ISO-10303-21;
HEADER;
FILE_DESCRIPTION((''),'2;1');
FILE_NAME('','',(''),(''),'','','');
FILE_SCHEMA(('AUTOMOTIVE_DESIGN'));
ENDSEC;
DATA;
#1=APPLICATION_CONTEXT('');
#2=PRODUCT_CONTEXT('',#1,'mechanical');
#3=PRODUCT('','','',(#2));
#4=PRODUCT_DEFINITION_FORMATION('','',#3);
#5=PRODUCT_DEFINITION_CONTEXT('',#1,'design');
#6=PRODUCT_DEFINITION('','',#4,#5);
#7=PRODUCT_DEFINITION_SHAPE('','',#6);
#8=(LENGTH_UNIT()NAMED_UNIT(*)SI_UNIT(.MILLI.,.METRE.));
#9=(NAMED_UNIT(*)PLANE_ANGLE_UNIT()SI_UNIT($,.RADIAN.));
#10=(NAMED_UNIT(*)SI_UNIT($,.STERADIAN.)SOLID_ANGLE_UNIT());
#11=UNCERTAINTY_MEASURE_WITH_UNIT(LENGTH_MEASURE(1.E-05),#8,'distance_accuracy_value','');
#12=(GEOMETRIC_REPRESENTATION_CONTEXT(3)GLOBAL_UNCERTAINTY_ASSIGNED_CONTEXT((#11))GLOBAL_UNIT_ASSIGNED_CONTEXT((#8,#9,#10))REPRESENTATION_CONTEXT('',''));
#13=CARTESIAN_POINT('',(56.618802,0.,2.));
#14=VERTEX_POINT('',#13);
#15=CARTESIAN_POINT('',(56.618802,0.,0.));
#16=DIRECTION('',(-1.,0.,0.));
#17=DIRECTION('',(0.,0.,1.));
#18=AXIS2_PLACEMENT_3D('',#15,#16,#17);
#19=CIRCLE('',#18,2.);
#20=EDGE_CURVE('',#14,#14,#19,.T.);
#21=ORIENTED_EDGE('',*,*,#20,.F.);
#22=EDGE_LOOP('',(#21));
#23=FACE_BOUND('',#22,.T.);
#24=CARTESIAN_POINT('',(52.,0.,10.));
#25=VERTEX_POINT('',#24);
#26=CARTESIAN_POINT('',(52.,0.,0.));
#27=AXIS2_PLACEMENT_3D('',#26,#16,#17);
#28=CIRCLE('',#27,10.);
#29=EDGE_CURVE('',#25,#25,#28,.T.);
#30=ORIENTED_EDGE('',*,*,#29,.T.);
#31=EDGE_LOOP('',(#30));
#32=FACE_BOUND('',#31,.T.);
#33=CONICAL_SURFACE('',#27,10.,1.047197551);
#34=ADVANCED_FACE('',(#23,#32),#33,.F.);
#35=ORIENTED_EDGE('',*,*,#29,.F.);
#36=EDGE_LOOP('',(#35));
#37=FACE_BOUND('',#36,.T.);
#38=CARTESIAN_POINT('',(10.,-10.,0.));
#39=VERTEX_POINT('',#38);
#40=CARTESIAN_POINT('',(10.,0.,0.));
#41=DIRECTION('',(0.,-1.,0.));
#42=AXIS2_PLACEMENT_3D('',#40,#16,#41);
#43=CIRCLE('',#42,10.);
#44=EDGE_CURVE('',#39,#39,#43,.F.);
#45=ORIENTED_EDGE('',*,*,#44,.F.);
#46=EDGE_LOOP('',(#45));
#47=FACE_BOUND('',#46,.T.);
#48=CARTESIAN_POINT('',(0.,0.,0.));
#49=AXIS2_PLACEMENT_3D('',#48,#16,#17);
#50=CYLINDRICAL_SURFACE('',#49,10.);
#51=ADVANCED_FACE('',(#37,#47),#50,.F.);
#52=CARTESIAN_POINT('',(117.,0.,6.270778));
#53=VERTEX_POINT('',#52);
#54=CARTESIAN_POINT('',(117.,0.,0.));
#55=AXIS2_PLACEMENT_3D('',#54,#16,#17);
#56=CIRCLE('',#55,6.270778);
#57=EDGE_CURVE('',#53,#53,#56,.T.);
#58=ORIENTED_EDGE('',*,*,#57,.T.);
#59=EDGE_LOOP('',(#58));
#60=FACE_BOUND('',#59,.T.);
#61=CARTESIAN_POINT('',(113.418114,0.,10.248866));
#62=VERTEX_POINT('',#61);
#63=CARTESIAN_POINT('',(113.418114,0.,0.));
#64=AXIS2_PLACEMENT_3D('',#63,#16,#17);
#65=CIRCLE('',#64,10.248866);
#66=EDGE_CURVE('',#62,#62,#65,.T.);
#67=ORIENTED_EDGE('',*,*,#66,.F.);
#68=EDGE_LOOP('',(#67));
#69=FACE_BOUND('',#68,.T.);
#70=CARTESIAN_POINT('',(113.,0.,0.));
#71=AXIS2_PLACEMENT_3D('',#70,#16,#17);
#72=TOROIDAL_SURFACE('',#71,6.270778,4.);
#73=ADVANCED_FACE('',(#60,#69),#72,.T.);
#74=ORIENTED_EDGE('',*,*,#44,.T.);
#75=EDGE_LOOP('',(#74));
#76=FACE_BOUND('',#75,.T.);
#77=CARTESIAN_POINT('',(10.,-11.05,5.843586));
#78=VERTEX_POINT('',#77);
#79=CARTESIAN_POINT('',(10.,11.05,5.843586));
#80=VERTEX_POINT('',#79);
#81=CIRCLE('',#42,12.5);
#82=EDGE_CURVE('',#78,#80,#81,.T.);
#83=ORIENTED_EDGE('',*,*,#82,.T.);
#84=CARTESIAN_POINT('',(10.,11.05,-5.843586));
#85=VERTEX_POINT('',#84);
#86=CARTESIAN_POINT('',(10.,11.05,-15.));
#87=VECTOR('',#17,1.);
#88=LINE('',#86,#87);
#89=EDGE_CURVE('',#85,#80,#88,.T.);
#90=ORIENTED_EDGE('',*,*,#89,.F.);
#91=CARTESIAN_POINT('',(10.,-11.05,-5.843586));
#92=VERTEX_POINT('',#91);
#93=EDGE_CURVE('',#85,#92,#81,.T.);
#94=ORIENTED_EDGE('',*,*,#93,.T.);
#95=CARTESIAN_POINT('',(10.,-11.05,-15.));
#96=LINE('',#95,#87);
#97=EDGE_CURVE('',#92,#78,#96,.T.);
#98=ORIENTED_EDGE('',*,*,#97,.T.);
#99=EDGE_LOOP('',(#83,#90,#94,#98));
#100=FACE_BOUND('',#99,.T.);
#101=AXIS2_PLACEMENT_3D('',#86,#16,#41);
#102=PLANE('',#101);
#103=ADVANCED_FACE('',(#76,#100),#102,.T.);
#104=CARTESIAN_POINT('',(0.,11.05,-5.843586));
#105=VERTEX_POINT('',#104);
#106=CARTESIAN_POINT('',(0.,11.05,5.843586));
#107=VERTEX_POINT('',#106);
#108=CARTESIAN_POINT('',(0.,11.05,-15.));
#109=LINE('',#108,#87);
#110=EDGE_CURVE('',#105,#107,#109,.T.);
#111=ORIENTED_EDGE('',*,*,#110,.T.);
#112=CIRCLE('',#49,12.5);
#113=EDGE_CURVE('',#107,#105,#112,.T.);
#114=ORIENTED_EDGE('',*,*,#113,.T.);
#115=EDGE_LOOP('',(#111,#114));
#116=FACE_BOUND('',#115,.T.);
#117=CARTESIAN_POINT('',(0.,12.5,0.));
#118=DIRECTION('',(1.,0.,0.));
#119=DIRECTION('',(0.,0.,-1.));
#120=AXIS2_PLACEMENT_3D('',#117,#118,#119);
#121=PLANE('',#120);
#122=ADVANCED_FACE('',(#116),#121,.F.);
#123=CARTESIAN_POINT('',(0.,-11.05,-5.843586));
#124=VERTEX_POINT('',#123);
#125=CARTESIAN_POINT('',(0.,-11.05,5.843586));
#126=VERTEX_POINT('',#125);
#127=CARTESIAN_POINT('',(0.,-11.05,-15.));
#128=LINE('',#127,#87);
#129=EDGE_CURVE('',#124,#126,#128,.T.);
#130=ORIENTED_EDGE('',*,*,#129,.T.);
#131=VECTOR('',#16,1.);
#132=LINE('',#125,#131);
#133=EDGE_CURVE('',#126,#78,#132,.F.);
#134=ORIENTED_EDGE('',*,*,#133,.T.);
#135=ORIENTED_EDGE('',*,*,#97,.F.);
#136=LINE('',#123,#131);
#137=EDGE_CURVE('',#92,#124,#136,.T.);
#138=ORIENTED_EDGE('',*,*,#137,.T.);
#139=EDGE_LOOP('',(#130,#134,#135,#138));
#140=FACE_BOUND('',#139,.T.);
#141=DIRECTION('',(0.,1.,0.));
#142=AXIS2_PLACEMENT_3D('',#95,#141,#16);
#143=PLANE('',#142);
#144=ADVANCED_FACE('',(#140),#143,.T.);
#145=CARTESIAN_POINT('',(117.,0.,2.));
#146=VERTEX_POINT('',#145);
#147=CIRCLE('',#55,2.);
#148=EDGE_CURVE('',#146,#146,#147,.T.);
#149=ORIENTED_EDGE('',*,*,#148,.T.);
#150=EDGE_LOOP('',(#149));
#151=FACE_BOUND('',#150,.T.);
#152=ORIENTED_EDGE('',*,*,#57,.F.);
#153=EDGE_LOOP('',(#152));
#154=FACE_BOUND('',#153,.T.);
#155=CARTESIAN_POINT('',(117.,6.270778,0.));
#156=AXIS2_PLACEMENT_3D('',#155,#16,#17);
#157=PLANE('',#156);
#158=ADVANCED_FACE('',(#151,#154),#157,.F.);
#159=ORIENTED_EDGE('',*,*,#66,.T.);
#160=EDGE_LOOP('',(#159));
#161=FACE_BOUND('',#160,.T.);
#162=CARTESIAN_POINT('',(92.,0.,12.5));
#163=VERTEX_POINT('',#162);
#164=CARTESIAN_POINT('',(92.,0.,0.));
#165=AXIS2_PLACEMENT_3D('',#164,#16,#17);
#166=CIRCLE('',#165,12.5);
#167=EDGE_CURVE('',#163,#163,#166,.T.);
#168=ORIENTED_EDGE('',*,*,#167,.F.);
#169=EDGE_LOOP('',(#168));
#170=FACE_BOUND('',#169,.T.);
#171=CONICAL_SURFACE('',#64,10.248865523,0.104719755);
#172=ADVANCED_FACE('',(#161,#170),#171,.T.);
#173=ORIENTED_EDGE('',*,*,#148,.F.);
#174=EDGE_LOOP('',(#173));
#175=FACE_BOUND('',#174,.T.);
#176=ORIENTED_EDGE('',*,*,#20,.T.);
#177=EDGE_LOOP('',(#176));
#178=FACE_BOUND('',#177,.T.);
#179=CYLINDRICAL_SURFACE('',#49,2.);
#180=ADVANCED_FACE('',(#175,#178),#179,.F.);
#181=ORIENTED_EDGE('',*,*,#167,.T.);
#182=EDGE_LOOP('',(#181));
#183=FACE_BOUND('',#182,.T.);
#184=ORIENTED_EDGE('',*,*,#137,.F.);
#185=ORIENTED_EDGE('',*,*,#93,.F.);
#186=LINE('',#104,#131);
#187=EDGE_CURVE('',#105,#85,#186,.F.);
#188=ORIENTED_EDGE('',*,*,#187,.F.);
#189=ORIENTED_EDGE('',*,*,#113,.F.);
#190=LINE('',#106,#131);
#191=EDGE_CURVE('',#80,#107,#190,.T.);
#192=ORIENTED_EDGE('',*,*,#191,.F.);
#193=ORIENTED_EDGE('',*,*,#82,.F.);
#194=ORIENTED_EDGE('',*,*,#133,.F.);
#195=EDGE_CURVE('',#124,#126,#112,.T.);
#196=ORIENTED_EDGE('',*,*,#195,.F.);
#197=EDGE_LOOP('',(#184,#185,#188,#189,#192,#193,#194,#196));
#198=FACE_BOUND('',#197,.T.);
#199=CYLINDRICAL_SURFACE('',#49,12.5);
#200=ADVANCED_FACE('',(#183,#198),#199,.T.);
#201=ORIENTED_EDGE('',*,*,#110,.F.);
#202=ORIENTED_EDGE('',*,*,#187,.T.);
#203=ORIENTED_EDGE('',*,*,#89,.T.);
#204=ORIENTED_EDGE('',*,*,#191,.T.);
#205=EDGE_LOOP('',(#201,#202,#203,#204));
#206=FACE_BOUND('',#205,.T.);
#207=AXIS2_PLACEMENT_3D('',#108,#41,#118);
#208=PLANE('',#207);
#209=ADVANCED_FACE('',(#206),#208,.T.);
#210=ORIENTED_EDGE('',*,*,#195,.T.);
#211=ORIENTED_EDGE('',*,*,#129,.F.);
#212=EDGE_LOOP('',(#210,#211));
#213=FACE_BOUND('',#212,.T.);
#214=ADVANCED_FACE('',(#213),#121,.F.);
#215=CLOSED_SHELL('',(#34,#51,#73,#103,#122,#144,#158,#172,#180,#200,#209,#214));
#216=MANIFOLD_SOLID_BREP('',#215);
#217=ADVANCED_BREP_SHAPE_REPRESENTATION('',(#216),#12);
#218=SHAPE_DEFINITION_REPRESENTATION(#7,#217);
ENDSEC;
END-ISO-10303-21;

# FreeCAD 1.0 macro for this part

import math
import FreeCAD as App
import Part
import Sketcher

V = App.Vector
Q = App.Units.Quantity

doc = App.newDocument("Part")
body = doc.addObject("PartDesign::Body", "Body")

# Sketch on XY plane
sketch1 = doc.addObject("Sketcher::SketchObject", "Sketch")
body.addObject(sketch1)
sketch1.AttachmentSupport = (doc.XY_Plane, [""])
sketch1.MapMode = "FlatFace"
sketch1.addGeometry(Part.LineSegment(V(52, 10, 0), V(56.6, 2, 0)), False)
sketch1.addGeometry(Part.LineSegment(V(56.6, 2, 0), V(117, 2, 0)), False)
sketch1.addGeometry(Part.LineSegment(V(117, 2, 0), V(117, 6.3, 0)), False)
sketch1.addGeometry(Part.ArcOfCircle(Part.Circle(V(113, 6.3, 0), V(0, 0, 1), 4), math.radians(0), math.radians(84)), False)
sketch1.addGeometry(Part.LineSegment(V(113.4, 10.2, 0), V(92, 12.5, 0)), False)
sketch1.addGeometry(Part.LineSegment(V(92, 12.5, 0), V(0, 12.5, 0)), False)
sketch1.addGeometry(Part.LineSegment(V(0, 12.5, 0), V(0, 10, 0)), False)
sketch1.addGeometry(Part.LineSegment(V(0, 10, 0), V(52, 10, 0)), False)
sketch1.addConstraint(Sketcher.Constraint("Coincident", 0, 2, 1, 1))
sketch1.addConstraint(Sketcher.Constraint("Coincident", 1, 2, 2, 1))
sketch1.addConstraint(Sketcher.Constraint("Tangent", 2, 2, 3, 1))
sketch1.addConstraint(Sketcher.Constraint("Tangent", 3, 2, 4, 1))
sketch1.addConstraint(Sketcher.Constraint("Coincident", 4, 2, 5, 1))
sketch1.addConstraint(Sketcher.Constraint("Coincident", 5, 2, 6, 1))
sketch1.addConstraint(Sketcher.Constraint("Coincident", 6, 2, 7, 1))
sketch1.addConstraint(Sketcher.Constraint("Coincident", 7, 2, 0, 1))
sketch1.addConstraint(Sketcher.Constraint("Horizontal", 1))
sketch1.addConstraint(Sketcher.Constraint("Vertical", 2))
sketch1.addConstraint(Sketcher.Constraint("Horizontal", 5))
sketch1.addConstraint(Sketcher.Constraint("Vertical", 6))
sketch1.addConstraint(Sketcher.Constraint("Horizontal", 7))
sketch1.addConstraint(Sketcher.Constraint("PointOnObject", 5, 2, -2))
sketch1.addConstraint(Sketcher.Constraint("Radius", 3, 4.0))
sketch1.addConstraint(Sketcher.Constraint("DistanceX", 5, 2, 5, 1, 92.0))
sketch1.addConstraint(Sketcher.Constraint("DistanceX", 7, 1, 7, 2, 52.0))
sketch1.addConstraint(Sketcher.Constraint("Angle", 0, Q("-60 deg")))
sketch1.addConstraint(Sketcher.Constraint("Angle", 4, Q("174 deg")))
sketch1.addConstraint(Sketcher.Constraint("DistanceY", 6, 2, 6, 1, 2.5))
sketch1.addConstraint(Sketcher.Constraint("DistanceX", -1, 1, 3, 3, 113.0))
sketch1.addConstraint(Sketcher.Constraint("DistanceY", -1, 1, 0, 2, 2.0))
sketch1.addConstraint(Sketcher.Constraint("DistanceY", -1, 1, 6, 2, 10.0))
revolution = doc.addObject("PartDesign::Revolution", "Revolution")
body.addObject(revolution)
revolution.Profile = sketch1
revolution.ReferenceAxis = (sketch1, ["H_Axis"])
revolution.Angle = 360

# Sketch on XY plane
sketch2 = doc.addObject("Sketcher::SketchObject", "Sketch001")
body.addObject(sketch2)
sketch2.AttachmentSupport = (doc.XY_Plane, [""])
sketch2.MapMode = "FlatFace"
sketch2.addGeometry(Part.LineSegment(V(0, 11, 0), V(0, -11, 0)), False)
sketch2.addGeometry(Part.LineSegment(V(0, -11, 0), V(10, -11, 0)), False)
sketch2.addGeometry(Part.LineSegment(V(10, -11, 0), V(10, 11, 0)), False)
sketch2.addGeometry(Part.LineSegment(V(10, 11, 0), V(0, 11, 0)), False)
sketch2.addConstraint(Sketcher.Constraint("Coincident", 0, 2, 1, 1))
sketch2.addConstraint(Sketcher.Constraint("Coincident", 1, 2, 2, 1))
sketch2.addConstraint(Sketcher.Constraint("Coincident", 2, 2, 3, 1))
sketch2.addConstraint(Sketcher.Constraint("Coincident", 3, 2, 0, 1))
sketch2.addConstraint(Sketcher.Constraint("Vertical", 0))
sketch2.addConstraint(Sketcher.Constraint("Horizontal", 1))
sketch2.addConstraint(Sketcher.Constraint("Vertical", 2))
sketch2.addConstraint(Sketcher.Constraint("Horizontal", 3))
sketch2.addConstraint(Sketcher.Constraint("Symmetric", 0, 2, 3, 2, -1, 1))
sketch2.addConstraint(Sketcher.Constraint("DistanceX", 1, 1, 1, 2, 10.0))
sketch2.addConstraint(Sketcher.Constraint("DistanceY", 0, 2, 0, 1, 22.1))
pocket1 = doc.addObject("PartDesign::Pocket", "Pocket")
body.addObject(pocket1)
pocket1.Profile = sketch2
pocket1.Length = 30
pocket1.Midplane = True

doc.recompute()
